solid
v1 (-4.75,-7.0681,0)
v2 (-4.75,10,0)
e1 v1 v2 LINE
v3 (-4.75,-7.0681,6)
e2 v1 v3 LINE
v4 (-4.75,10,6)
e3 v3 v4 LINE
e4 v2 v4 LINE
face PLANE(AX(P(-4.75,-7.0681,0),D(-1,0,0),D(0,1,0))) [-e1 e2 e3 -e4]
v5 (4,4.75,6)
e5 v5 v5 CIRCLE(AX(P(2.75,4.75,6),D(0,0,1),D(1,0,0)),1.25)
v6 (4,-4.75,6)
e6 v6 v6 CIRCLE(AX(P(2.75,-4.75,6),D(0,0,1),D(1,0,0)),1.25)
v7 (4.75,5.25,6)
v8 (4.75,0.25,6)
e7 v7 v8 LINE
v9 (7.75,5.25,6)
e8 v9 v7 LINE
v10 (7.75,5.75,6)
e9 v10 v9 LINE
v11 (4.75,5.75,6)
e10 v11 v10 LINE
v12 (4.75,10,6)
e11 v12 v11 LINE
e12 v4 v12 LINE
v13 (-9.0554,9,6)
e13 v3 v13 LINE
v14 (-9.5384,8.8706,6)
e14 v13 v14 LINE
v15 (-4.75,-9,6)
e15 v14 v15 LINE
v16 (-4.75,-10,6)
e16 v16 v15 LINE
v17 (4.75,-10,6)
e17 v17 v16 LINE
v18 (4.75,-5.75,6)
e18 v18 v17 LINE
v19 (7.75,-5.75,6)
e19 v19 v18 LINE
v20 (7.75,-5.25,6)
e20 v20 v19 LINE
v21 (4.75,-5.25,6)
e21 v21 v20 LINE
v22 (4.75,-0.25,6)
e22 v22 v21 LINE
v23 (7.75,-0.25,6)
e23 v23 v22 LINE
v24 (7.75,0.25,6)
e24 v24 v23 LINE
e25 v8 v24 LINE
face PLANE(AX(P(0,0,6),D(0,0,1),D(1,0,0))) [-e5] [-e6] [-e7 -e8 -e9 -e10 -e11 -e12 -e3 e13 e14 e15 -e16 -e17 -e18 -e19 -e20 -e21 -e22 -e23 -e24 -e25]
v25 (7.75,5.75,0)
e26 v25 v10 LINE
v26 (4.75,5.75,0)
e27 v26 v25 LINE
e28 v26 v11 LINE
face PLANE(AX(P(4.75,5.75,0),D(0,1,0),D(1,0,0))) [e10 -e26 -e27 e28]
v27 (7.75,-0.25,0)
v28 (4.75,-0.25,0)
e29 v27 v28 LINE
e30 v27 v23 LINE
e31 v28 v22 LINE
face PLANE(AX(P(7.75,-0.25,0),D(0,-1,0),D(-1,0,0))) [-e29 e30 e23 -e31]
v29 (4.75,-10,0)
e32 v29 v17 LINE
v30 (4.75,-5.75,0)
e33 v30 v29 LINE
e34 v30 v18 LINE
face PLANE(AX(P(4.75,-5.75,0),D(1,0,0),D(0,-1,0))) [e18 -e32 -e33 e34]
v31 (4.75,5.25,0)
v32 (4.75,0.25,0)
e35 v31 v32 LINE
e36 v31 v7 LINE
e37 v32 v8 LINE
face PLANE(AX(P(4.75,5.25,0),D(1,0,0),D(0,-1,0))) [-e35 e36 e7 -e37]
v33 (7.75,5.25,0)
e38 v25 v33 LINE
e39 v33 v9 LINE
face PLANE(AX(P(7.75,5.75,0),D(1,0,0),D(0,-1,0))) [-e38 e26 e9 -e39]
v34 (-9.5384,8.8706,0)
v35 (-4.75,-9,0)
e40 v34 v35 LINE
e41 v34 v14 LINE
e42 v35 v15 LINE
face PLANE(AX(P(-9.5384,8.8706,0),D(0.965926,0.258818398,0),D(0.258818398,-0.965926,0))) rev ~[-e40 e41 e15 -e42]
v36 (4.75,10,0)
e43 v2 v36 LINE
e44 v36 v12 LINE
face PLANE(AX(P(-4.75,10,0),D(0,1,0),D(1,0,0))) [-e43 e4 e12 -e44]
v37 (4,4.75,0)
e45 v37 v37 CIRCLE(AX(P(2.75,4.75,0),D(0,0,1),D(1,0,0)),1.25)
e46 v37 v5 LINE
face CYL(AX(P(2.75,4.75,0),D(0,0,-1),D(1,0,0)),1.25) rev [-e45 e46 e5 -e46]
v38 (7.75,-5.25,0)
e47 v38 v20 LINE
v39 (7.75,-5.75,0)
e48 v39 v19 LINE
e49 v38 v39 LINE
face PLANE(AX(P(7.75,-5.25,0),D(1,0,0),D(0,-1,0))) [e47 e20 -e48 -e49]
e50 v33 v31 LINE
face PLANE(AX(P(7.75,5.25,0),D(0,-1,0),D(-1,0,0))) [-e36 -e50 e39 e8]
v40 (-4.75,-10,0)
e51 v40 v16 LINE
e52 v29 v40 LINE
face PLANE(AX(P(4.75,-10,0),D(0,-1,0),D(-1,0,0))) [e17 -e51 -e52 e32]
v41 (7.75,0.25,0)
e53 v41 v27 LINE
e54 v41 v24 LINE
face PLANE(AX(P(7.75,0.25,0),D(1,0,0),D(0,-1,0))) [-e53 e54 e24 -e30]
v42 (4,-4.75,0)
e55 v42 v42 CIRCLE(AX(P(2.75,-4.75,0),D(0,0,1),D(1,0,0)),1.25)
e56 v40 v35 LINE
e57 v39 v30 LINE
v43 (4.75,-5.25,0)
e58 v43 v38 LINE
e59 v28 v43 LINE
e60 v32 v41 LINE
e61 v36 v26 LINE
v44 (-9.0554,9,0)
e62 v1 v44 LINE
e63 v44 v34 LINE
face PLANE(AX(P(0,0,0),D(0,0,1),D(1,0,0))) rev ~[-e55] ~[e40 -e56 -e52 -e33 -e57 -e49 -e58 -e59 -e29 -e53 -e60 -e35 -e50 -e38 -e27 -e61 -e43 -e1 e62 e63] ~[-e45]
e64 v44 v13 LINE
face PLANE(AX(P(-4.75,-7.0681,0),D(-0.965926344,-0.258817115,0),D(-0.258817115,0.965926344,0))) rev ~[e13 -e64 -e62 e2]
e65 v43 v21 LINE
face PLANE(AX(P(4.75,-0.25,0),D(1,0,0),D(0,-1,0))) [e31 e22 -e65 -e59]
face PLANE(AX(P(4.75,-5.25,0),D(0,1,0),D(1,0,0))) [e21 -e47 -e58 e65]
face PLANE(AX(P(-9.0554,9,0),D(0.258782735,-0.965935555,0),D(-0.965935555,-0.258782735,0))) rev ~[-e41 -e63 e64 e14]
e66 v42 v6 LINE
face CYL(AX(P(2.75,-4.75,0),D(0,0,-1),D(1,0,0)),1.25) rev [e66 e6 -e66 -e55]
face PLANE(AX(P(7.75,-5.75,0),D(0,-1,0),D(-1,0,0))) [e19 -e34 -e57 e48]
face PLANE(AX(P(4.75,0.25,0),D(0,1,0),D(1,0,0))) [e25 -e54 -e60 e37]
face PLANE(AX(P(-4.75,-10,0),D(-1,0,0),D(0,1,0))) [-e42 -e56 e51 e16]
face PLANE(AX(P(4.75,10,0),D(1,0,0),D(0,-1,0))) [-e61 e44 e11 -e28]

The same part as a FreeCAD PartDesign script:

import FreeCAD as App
import Part
import Sketcher
Q = App.Units.Quantity

doc = App.newDocument("Part")
body = doc.addObject("PartDesign::Body", "Body")

# Sketch on XY plane
sketch1 = body.newObject("Sketcher::SketchObject", "Sketch")
sketch1.AttachmentSupport = (doc.getObject("XY_Plane"), [""])
sketch1.MapMode = "FlatFace"
sketch1.addGeometry([
    Part.LineSegment(App.Vector(-4.8, -10, 0), App.Vector(4.8, -10, 0)),  # 0
    Part.LineSegment(App.Vector(4.8, -10, 0), App.Vector(4.8, -5.8, 0)),  # 1
    Part.LineSegment(App.Vector(4.8, -5.8, 0), App.Vector(7.8, -5.8, 0)),  # 2
    Part.LineSegment(App.Vector(7.8, -5.8, 0), App.Vector(7.8, -5.2, 0)),  # 3
    Part.LineSegment(App.Vector(7.8, -5.2, 0), App.Vector(4.8, -5.2, 0)),  # 4
    Part.LineSegment(App.Vector(4.8, -5.2, 0), App.Vector(4.8, -0.2, 0)),  # 5
    Part.LineSegment(App.Vector(4.8, -0.2, 0), App.Vector(7.8, -0.2, 0)),  # 6
    Part.LineSegment(App.Vector(7.8, -0.2, 0), App.Vector(7.8, 0.2, 0)),  # 7
    Part.LineSegment(App.Vector(7.8, 0.2, 0), App.Vector(4.8, 0.2, 0)),  # 8
    Part.LineSegment(App.Vector(4.8, 0.2, 0), App.Vector(4.8, 5.2, 0)),  # 9
    Part.LineSegment(App.Vector(4.8, 5.2, 0), App.Vector(7.8, 5.2, 0)),  # 10
    Part.LineSegment(App.Vector(7.8, 5.2, 0), App.Vector(7.8, 5.8, 0)),  # 11
    Part.LineSegment(App.Vector(7.8, 5.8, 0), App.Vector(4.8, 5.8, 0)),  # 12
    Part.LineSegment(App.Vector(4.8, 5.8, 0), App.Vector(4.8, 10, 0)),  # 13
    Part.LineSegment(App.Vector(4.8, 10, 0), App.Vector(-4.8, 10, 0)),  # 14
    Part.LineSegment(App.Vector(-4.8, 10, 0), App.Vector(-4.8, -7.1, 0)),  # 15
    Part.LineSegment(App.Vector(-4.8, -7.1, 0), App.Vector(-9.1, 9, 0)),  # 16
    Part.LineSegment(App.Vector(-9.1, 9, 0), App.Vector(-9.5, 8.9, 0)),  # 17
    Part.LineSegment(App.Vector(-9.5, 8.9, 0), App.Vector(-4.8, -9, 0)),  # 18
    Part.LineSegment(App.Vector(-4.8, -9, 0), App.Vector(-4.8, -10, 0)),  # 19
    Part.Circle(App.Vector(2.8, -4.8, 0), App.Vector(0, 0, 1), 1.2),  # 20
    Part.Circle(App.Vector(2.8, 4.8, 0), App.Vector(0, 0, 1), 1.2),  # 21
], False)
sketch1.addConstraint([
    Sketcher.Constraint("Coincident", 0, 2, 1, 1),
    Sketcher.Constraint("Coincident", 1, 2, 2, 1),
    Sketcher.Constraint("Coincident", 2, 2, 3, 1),
    Sketcher.Constraint("Coincident", 3, 2, 4, 1),
    Sketcher.Constraint("Coincident", 4, 2, 5, 1),
    Sketcher.Constraint("Coincident", 5, 2, 6, 1),
    Sketcher.Constraint("Coincident", 6, 2, 7, 1),
    Sketcher.Constraint("Coincident", 7, 2, 8, 1),
    Sketcher.Constraint("Coincident", 8, 2, 9, 1),
    Sketcher.Constraint("Coincident", 9, 2, 10, 1),
    Sketcher.Constraint("Coincident", 10, 2, 11, 1),
    Sketcher.Constraint("Coincident", 11, 2, 12, 1),
    Sketcher.Constraint("Coincident", 12, 2, 13, 1),
    Sketcher.Constraint("Coincident", 13, 2, 14, 1),
    Sketcher.Constraint("Coincident", 14, 2, 15, 1),
    Sketcher.Constraint("Coincident", 15, 2, 16, 1),
    Sketcher.Constraint("Coincident", 16, 2, 17, 1),
    Sketcher.Constraint("Coincident", 17, 2, 18, 1),
    Sketcher.Constraint("Coincident", 18, 2, 19, 1),
    Sketcher.Constraint("Coincident", 19, 2, 0, 1),
    Sketcher.Constraint("Horizontal", 0),
    Sketcher.Constraint("Vertical", 1),
    Sketcher.Constraint("Horizontal", 2),
    Sketcher.Constraint("Vertical", 3),
    Sketcher.Constraint("Horizontal", 4),
    Sketcher.Constraint("Vertical", 5),
    Sketcher.Constraint("Horizontal", 6),
    Sketcher.Constraint("Vertical", 7),
    Sketcher.Constraint("Horizontal", 8),
    Sketcher.Constraint("Vertical", 9),
    Sketcher.Constraint("Horizontal", 10),
    Sketcher.Constraint("Vertical", 11),
    Sketcher.Constraint("Horizontal", 12),
    Sketcher.Constraint("Vertical", 13),
    Sketcher.Constraint("Horizontal", 14),
    Sketcher.Constraint("Vertical", 15),
    Sketcher.Constraint("Vertical", 19),
    Sketcher.Constraint("Equal", 20, 21),
    Sketcher.Constraint("Symmetric", 0, 2, 14, 2, -1, 1),
    Sketcher.Constraint("Symmetric", 20, 3, 21, 3, -1),
    Sketcher.Constraint("Symmetric", 5, 2, 8, 2, -1),
    Sketcher.Constraint("Symmetric", 3, 2, 10, 2, -1),
    Sketcher.Constraint("Symmetric", 1, 2, 12, 2, -1),
    Sketcher.Constraint("Perpendicular", 16, 17),
    Sketcher.Constraint("Perpendicular", 17, 18),
    Sketcher.Constraint("Vertical", 1, 2, 4, 2),
    Sketcher.Constraint("Vertical", 3, 2, 6, 2),
    Sketcher.Constraint("Vertical", 15, 2, 18, 2),
    Sketcher.Constraint("Equal", 3, 7),
    Sketcher.Constraint("Diameter", 20, 2.5),
    Sketcher.Constraint("DistanceX", 2, 1, 2, 2, 3.0),
    Sketcher.Constraint("DistanceY", 5, 1, 5, 2, 5.0),
    Sketcher.Constraint("DistanceY", 19, 2, 19, 1, 1.0),
    Sketcher.Constraint("DistanceX", 0, 1, 0, 2, 9.5),
    Sketcher.Constraint("DistanceY", 3, 1, 3, 2, 0.5),
    Sketcher.Constraint("DistanceX", 20, 3, 0, 2, 2.0),
    Sketcher.Constraint("DistanceY", 1, 2, 20, 3, 1.0),
    Sketcher.Constraint("DistanceY", 16, 2, 14, 2, 1.0),
    Sketcher.Constraint("Distance", 17, 0.5),
    Sketcher.Constraint("Angle", 16, Q("105 deg")),
    Sketcher.Constraint("DistanceY", 0, 2, 3, 2, 4.75),
])
pad1 = body.newObject("PartDesign::Pad", "Pad")
pad1.Profile = sketch1
pad1.Length = 6

doc.recompute()
